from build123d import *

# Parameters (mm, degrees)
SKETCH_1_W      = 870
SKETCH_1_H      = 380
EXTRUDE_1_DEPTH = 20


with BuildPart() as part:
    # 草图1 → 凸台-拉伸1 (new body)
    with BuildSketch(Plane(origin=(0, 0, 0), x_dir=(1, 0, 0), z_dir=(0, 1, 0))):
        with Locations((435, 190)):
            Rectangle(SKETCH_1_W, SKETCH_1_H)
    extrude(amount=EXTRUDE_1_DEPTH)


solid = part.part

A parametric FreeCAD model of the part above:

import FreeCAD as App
import Part
import Sketcher
from FreeCAD import Vector

doc = App.newDocument("Part")
params = doc.addObject("Spreadsheet::Sheet", "Params")
for row, (alias, value) in enumerate([
    ("sketch1_width", "870 mm"),
    ("sketch1_height", "380 mm"),
    ("pad1_length", "20 mm"),
], start=1):
    params.set(f"A{row}", alias)
    params.set(f"B{row}", "=" + value)
    params.setAlias(f"B{row}", alias)

body = doc.addObject("PartDesign::Body", "Body")

# Sketch on XZ plane
sketch1 = body.newObject("Sketcher::SketchObject", "Sketch")
sketch1.AttachmentSupport = (doc.getObject("XZ_Plane"), [""])
sketch1.MapMode = "FlatFace"
sketch1.addGeometry(Part.LineSegment(Vector(0, -380, 0), Vector(0, 0, 0)), False)
sketch1.addGeometry(Part.LineSegment(Vector(0, 0, 0), Vector(870, 0, 0)), False)
sketch1.addGeometry(Part.LineSegment(Vector(870, 0, 0), Vector(870, -380, 0)), False)
sketch1.addGeometry(Part.LineSegment(Vector(870, -380, 0), Vector(0, -380, 0)), False)
sketch1.addConstraint(Sketcher.Constraint("Coincident", 0, 2, 1, 1))
sketch1.addConstraint(Sketcher.Constraint("Coincident", 1, 2, 2, 1))
sketch1.addConstraint(Sketcher.Constraint("Coincident", 2, 2, 3, 1))
sketch1.addConstraint(Sketcher.Constraint("Coincident", 3, 2, 0, 1))
sketch1.addConstraint(Sketcher.Constraint("Vertical", 0))
sketch1.addConstraint(Sketcher.Constraint("Horizontal", 1))
sketch1.addConstraint(Sketcher.Constraint("Vertical", 2))
sketch1.addConstraint(Sketcher.Constraint("Horizontal", 3))
sketch1.addConstraint(Sketcher.Constraint("Coincident", 0, 2, -1, 1))
sketch1.addConstraint(Sketcher.Constraint("DistanceX", 1, 1, 1, 2, 870.0))
sketch1.addConstraint(Sketcher.Constraint("DistanceY", 0, 1, 0, 2, 380.0))
sketch1.setExpression("Constraints[9]", "Params.sketch1_width")
sketch1.setExpression("Constraints[10]", "Params.sketch1_height")
pad1 = body.newObject("PartDesign::Pad", "Pad")
pad1.Profile = sketch1
pad1.setExpression("Length", "Params.pad1_length")
pad1.Reversed = True

doc.recompute()
